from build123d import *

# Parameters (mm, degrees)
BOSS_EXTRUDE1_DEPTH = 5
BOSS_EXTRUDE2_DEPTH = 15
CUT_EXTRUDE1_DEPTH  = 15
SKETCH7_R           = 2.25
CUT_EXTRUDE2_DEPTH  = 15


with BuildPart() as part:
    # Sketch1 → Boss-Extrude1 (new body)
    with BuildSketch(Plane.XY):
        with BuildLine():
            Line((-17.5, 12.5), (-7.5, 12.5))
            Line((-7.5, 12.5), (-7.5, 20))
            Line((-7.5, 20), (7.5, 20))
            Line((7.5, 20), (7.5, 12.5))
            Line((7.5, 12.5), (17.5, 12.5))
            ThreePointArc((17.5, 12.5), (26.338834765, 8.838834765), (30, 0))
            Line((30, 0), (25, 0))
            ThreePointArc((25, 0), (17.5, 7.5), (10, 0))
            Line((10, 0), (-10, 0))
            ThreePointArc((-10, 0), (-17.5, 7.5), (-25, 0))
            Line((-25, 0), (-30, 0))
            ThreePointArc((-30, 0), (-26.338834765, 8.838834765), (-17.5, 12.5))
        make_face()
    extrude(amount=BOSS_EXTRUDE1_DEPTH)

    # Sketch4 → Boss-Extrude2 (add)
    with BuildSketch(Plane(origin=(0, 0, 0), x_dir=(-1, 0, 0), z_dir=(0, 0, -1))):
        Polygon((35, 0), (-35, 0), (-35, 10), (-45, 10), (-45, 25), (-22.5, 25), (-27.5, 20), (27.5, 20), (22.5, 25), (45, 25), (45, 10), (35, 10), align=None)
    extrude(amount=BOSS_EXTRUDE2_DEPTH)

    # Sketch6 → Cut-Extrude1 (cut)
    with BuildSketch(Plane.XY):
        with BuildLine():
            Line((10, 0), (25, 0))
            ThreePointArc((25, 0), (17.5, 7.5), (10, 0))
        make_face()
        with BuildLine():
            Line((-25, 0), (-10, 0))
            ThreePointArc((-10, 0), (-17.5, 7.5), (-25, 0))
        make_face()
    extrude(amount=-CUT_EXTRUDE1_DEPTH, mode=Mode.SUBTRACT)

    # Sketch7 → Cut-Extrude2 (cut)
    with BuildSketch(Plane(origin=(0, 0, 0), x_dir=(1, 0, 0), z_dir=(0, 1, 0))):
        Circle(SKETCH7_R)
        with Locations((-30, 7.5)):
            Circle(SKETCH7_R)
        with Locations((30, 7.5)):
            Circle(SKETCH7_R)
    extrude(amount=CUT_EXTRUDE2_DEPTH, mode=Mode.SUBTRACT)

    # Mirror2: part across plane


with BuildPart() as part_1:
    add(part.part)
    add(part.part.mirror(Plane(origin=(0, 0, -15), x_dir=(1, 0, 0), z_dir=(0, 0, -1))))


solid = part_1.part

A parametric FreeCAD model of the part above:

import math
import FreeCAD as App
import Part
import Sketcher

V = App.Vector

doc = App.newDocument("Part")
body = doc.addObject("PartDesign::Body", "Body")

# Sketch on XY plane
sketch1 = doc.addObject("Sketcher::SketchObject", "Sketch")
body.addObject(sketch1)
sketch1.AttachmentSupport = (doc.XY_Plane, [""])
sketch1.MapMode = "FlatFace"
sketch1.addGeometry([
    Part.LineSegment(V(-8, 12, 0), V(-18, 12, 0)),  # 0
    Part.ArcOfCircle(Part.Circle(V(-18, 0, 0), V(0, 0, 1), 12), math.radians(90), math.radians(180)),  # 1
    Part.LineSegment(V(-30, 0, 0), V(-25, 0, 0)),  # 2
    Part.ArcOfCircle(Part.Circle(V(-18, 0, 0), V(0, 0, 1), 8), math.radians(0), math.radians(180)),  # 3
    Part.LineSegment(V(-10, 0, 0), V(10, 0, 0)),  # 4
    Part.ArcOfCircle(Part.Circle(V(18, 0, 0), V(0, 0, 1), 8), math.radians(0), math.radians(180)),  # 5
    Part.LineSegment(V(25, 0, 0), V(30, 0, 0)),  # 6
    Part.ArcOfCircle(Part.Circle(V(18, 0, 0), V(0, 0, 1), 12), math.radians(0), math.radians(90)),  # 7
    Part.LineSegment(V(18, 12, 0), V(8, 12, 0)),  # 8
    Part.LineSegment(V(8, 12, 0), V(8, 20, 0)),  # 9
    Part.LineSegment(V(8, 20, 0), V(-8, 20, 0)),  # 10
    Part.LineSegment(V(-8, 20, 0), V(-8, 12, 0)),  # 11
], False)
sketch1.addConstraint([
    Sketcher.Constraint("Tangent", 0, 2, 1, 1),
    Sketcher.Constraint("Coincident", 1, 2, 2, 1),
    Sketcher.Constraint("Coincident", 2, 2, 3, 2),
    Sketcher.Constraint("Coincident", 3, 1, 4, 1),
    Sketcher.Constraint("Coincident", 4, 2, 5, 2),
    Sketcher.Constraint("Coincident", 5, 1, 6, 1),
    Sketcher.Constraint("Coincident", 6, 2, 7, 1),
    Sketcher.Constraint("Tangent", 7, 2, 8, 1),
    Sketcher.Constraint("Coincident", 8, 2, 9, 1),
    Sketcher.Constraint("Coincident", 9, 2, 10, 1),
    Sketcher.Constraint("Coincident", 10, 2, 11, 1),
    Sketcher.Constraint("Coincident", 11, 2, 0, 1),
    Sketcher.Constraint("Horizontal", 0),
    Sketcher.Constraint("Horizontal", 2),
    Sketcher.Constraint("Horizontal", 4),
    Sketcher.Constraint("Horizontal", 6),
    Sketcher.Constraint("Horizontal", 8),
    Sketcher.Constraint("Vertical", 9),
    Sketcher.Constraint("Horizontal", 10),
    Sketcher.Constraint("Vertical", 11),
    Sketcher.Constraint("Coincident", 3, 3, 1, 3),
    Sketcher.Constraint("Coincident", 7, 3, 5, 3),
    Sketcher.Constraint("Equal", 3, 5),
    Sketcher.Constraint("Equal", 1, 7),
    Sketcher.Constraint("Symmetric", 1, 3, 5, 3, -1, 1),
    Sketcher.Constraint("Symmetric", 8, 2, 11, 2, -2),
    Sketcher.Constraint("PointOnObject", 1, 2, -1),
    Sketcher.Constraint("PointOnObject", 3, 1, -1),
    Sketcher.Constraint("PointOnObject", 5, 1, -1),
    Sketcher.Constraint("Radius", 1, 12.5),
    Sketcher.Constraint("Radius", 3, 7.5),
    Sketcher.Constraint("DistanceX", 0, 2, 0, 1, 10.0),
    Sketcher.Constraint("DistanceX", 4, 1, 4, 2, 20.0),
    Sketcher.Constraint("DistanceY", 9, 1, 9, 2, 7.5),
])
pad1 = doc.addObject("PartDesign::Pad", "Pad")
body.addObject(pad1)
pad1.Profile = sketch1
pad1.Length = 5

# Sketch on XY plane
sketch2 = doc.addObject("Sketcher::SketchObject", "Sketch001")
body.addObject(sketch2)
sketch2.AttachmentSupport = (doc.XY_Plane, [""])
sketch2.MapMode = "FlatFace"
sketch2.addGeometry([
    Part.LineSegment(V(35, 0, 0), V(-35, 0, 0)),  # 0
    Part.LineSegment(V(-35, 0, 0), V(-35, 10, 0)),  # 1
    Part.LineSegment(V(-35, 10, 0), V(-45, 10, 0)),  # 2
    Part.LineSegment(V(-45, 10, 0), V(-45, 25, 0)),  # 3
    Part.LineSegment(V(-45, 25, 0), V(-22, 25, 0)),  # 4
    Part.LineSegment(V(-22, 25, 0), V(-28, 20, 0)),  # 5
    Part.LineSegment(V(-28, 20, 0), V(28, 20, 0)),  # 6
    Part.LineSegment(V(28, 20, 0), V(22, 25, 0)),  # 7
    Part.LineSegment(V(22, 25, 0), V(45, 25, 0)),  # 8
    Part.LineSegment(V(45, 25, 0), V(45, 10, 0)),  # 9
    Part.LineSegment(V(45, 10, 0), V(35, 10, 0)),  # 10
    Part.LineSegment(V(35, 10, 0), V(35, 0, 0)),  # 11
], False)
sketch2.addConstraint([
    Sketcher.Constraint("Coincident", 0, 2, 1, 1),
    Sketcher.Constraint("Coincident", 1, 2, 2, 1),
    Sketcher.Constraint("Coincident", 2, 2, 3, 1),
    Sketcher.Constraint("Coincident", 3, 2, 4, 1),
    Sketcher.Constraint("Coincident", 4, 2, 5, 1),
    Sketcher.Constraint("Coincident", 5, 2, 6, 1),
    Sketcher.Constraint("Coincident", 6, 2, 7, 1),
    Sketcher.Constraint("Coincident", 7, 2, 8, 1),
    Sketcher.Constraint("Coincident", 8, 2, 9, 1),
    Sketcher.Constraint("Coincident", 9, 2, 10, 1),
    Sketcher.Constraint("Coincident", 10, 2, 11, 1),
    Sketcher.Constraint("Coincident", 11, 2, 0, 1),
    Sketcher.Constraint("Horizontal", 0),
    Sketcher.Constraint("Vertical", 1),
    Sketcher.Constraint("Horizontal", 2),
    Sketcher.Constraint("Vertical", 3),
    Sketcher.Constraint("Horizontal", 4),
    Sketcher.Constraint("Horizontal", 6),
    Sketcher.Constraint("Horizontal", 8),
    Sketcher.Constraint("Vertical", 9),
    Sketcher.Constraint("Horizontal", 10),
    Sketcher.Constraint("Vertical", 11),
    Sketcher.Constraint("Symmetric", 0, 2, 11, 2, -1, 1),
    Sketcher.Constraint("Symmetric", 4, 2, 7, 2, -2),
    Sketcher.Constraint("Symmetric", 2, 2, 9, 2, -2),
    Sketcher.Constraint("Perpendicular", 5, 7),
    Sketcher.Constraint("Equal", 10, 1),
    Sketcher.Constraint("Equal", 5, 7),
    Sketcher.Constraint("DistanceX", 0, 2, 0, 1, 70.0),
    Sketcher.Constraint("DistanceX", 2, 2, 2, 1, 10.0),
    Sketcher.Constraint("DistanceX", 6, 1, 6, 2, 55.0),
    Sketcher.Constraint("DistanceY", 3, 1, 3, 2, 15.0),
    Sketcher.Constraint("DistanceX", 4, 1, 4, 2, 22.5),
])
pad2 = doc.addObject("PartDesign::Pad", "Pad001")
body.addObject(pad2)
pad2.Profile = sketch2
pad2.Length = 15
pad2.Reversed = True

# Sketch on XY plane
sketch3 = doc.addObject("Sketcher::SketchObject", "Sketch002")
body.addObject(sketch3)
sketch3.AttachmentSupport = (doc.XY_Plane, [""])
sketch3.MapMode = "FlatFace"
sketch3.addGeometry([
    Part.LineSegment(V(10, 0, 0), V(25, 0, 0)),
    Part.ArcOfCircle(Part.Circle(V(18, 0, 0), V(0, 0, 1), 8), math.radians(0), math.radians(180)),
    Part.LineSegment(V(-25, 0, 0), V(-10, 0, 0)),
    Part.ArcOfCircle(Part.Circle(V(-18, 0, 0), V(0, 0, 1), 8), math.radians(0), math.radians(180)),
], False)
sketch3.addConstraint([
    Sketcher.Constraint("Coincident", 0, 1, 1, 2),
    Sketcher.Constraint("Coincident", 1, 1, 0, 2),
    Sketcher.Constraint("Coincident", 2, 1, 3, 2),
    Sketcher.Constraint("Coincident", 3, 1, 2, 2),
    Sketcher.Constraint("Horizontal", 0),
    Sketcher.Constraint("Horizontal", 2),
    Sketcher.Constraint("Equal", 1, 3),
    Sketcher.Constraint("Symmetric", 1, 3, 3, 3, -1, 1),
    Sketcher.Constraint("PointOnObject", 1, 3, -1),
    Sketcher.Constraint("PointOnObject", 0, 1, -1),
    Sketcher.Constraint("PointOnObject", 2, 1, -1),
    Sketcher.Constraint("Radius", 1, 7.5),
    Sketcher.Constraint("DistanceX", -1, 1, 0, 1, 10.0),
])
pocket1 = doc.addObject("PartDesign::Pocket", "Pocket")
body.addObject(pocket1)
pocket1.Profile = sketch3
pocket1.Length = 15

# Sketch on XZ plane
sketch4 = doc.addObject("Sketcher::SketchObject", "Sketch003")
body.addObject(sketch4)
sketch4.AttachmentSupport = (doc.XZ_Plane, [""])
sketch4.MapMode = "FlatFace"
sketch4.addGeometry([
    Part.Circle(V(0, 0, 0), V(0, 0, 1), 2.2),
    Part.Circle(V(-30, -7.5, 0), V(0, 0, 1), 2.2),
    Part.Circle(V(30, -7.5, 0), V(0, 0, 1), 2.2),
], False)
sketch4.addConstraint([
    Sketcher.Constraint("Coincident", 0, 3, -1, 1),
    Sketcher.Constraint("Equal", 0, 1),
    Sketcher.Constraint("Equal", 1, 2),
    Sketcher.Constraint("Symmetric", 1, 3, 2, 3, -2),
    Sketcher.Constraint("Diameter", 0, 4.5),
    Sketcher.Constraint("DistanceX", 1, 3, -1, 1, 30.0),
    Sketcher.Constraint("DistanceY", 1, 3, -1, 1, 7.5),
])
pocket2 = doc.addObject("PartDesign::Pocket", "Pocket001")
body.addObject(pocket2)
pocket2.Profile = sketch4
pocket2.Length = 15
body2 = doc.addObject("PartDesign::Body", "Body001")
doc.recompute()

body2.BaseFeature = body
doc.recompute()

mirroring = doc.addObject("Part::Mirroring", "Mirroring")
mirroring.Source = body
mirroring.Base = V(0, 0, -15)
mirroring.Normal = V(0, 0, -1)
body3 = doc.addObject("PartDesign::Body", "Body002")
body3.BaseFeature = mirroring
boolean = doc.addObject("PartDesign::Boolean", "Boolean")
body2.addObject(boolean)
boolean.Type = "Fuse"
boolean.addObjects([body3])
doc.recompute()
mirroring.Visibility = False

doc.recompute()
